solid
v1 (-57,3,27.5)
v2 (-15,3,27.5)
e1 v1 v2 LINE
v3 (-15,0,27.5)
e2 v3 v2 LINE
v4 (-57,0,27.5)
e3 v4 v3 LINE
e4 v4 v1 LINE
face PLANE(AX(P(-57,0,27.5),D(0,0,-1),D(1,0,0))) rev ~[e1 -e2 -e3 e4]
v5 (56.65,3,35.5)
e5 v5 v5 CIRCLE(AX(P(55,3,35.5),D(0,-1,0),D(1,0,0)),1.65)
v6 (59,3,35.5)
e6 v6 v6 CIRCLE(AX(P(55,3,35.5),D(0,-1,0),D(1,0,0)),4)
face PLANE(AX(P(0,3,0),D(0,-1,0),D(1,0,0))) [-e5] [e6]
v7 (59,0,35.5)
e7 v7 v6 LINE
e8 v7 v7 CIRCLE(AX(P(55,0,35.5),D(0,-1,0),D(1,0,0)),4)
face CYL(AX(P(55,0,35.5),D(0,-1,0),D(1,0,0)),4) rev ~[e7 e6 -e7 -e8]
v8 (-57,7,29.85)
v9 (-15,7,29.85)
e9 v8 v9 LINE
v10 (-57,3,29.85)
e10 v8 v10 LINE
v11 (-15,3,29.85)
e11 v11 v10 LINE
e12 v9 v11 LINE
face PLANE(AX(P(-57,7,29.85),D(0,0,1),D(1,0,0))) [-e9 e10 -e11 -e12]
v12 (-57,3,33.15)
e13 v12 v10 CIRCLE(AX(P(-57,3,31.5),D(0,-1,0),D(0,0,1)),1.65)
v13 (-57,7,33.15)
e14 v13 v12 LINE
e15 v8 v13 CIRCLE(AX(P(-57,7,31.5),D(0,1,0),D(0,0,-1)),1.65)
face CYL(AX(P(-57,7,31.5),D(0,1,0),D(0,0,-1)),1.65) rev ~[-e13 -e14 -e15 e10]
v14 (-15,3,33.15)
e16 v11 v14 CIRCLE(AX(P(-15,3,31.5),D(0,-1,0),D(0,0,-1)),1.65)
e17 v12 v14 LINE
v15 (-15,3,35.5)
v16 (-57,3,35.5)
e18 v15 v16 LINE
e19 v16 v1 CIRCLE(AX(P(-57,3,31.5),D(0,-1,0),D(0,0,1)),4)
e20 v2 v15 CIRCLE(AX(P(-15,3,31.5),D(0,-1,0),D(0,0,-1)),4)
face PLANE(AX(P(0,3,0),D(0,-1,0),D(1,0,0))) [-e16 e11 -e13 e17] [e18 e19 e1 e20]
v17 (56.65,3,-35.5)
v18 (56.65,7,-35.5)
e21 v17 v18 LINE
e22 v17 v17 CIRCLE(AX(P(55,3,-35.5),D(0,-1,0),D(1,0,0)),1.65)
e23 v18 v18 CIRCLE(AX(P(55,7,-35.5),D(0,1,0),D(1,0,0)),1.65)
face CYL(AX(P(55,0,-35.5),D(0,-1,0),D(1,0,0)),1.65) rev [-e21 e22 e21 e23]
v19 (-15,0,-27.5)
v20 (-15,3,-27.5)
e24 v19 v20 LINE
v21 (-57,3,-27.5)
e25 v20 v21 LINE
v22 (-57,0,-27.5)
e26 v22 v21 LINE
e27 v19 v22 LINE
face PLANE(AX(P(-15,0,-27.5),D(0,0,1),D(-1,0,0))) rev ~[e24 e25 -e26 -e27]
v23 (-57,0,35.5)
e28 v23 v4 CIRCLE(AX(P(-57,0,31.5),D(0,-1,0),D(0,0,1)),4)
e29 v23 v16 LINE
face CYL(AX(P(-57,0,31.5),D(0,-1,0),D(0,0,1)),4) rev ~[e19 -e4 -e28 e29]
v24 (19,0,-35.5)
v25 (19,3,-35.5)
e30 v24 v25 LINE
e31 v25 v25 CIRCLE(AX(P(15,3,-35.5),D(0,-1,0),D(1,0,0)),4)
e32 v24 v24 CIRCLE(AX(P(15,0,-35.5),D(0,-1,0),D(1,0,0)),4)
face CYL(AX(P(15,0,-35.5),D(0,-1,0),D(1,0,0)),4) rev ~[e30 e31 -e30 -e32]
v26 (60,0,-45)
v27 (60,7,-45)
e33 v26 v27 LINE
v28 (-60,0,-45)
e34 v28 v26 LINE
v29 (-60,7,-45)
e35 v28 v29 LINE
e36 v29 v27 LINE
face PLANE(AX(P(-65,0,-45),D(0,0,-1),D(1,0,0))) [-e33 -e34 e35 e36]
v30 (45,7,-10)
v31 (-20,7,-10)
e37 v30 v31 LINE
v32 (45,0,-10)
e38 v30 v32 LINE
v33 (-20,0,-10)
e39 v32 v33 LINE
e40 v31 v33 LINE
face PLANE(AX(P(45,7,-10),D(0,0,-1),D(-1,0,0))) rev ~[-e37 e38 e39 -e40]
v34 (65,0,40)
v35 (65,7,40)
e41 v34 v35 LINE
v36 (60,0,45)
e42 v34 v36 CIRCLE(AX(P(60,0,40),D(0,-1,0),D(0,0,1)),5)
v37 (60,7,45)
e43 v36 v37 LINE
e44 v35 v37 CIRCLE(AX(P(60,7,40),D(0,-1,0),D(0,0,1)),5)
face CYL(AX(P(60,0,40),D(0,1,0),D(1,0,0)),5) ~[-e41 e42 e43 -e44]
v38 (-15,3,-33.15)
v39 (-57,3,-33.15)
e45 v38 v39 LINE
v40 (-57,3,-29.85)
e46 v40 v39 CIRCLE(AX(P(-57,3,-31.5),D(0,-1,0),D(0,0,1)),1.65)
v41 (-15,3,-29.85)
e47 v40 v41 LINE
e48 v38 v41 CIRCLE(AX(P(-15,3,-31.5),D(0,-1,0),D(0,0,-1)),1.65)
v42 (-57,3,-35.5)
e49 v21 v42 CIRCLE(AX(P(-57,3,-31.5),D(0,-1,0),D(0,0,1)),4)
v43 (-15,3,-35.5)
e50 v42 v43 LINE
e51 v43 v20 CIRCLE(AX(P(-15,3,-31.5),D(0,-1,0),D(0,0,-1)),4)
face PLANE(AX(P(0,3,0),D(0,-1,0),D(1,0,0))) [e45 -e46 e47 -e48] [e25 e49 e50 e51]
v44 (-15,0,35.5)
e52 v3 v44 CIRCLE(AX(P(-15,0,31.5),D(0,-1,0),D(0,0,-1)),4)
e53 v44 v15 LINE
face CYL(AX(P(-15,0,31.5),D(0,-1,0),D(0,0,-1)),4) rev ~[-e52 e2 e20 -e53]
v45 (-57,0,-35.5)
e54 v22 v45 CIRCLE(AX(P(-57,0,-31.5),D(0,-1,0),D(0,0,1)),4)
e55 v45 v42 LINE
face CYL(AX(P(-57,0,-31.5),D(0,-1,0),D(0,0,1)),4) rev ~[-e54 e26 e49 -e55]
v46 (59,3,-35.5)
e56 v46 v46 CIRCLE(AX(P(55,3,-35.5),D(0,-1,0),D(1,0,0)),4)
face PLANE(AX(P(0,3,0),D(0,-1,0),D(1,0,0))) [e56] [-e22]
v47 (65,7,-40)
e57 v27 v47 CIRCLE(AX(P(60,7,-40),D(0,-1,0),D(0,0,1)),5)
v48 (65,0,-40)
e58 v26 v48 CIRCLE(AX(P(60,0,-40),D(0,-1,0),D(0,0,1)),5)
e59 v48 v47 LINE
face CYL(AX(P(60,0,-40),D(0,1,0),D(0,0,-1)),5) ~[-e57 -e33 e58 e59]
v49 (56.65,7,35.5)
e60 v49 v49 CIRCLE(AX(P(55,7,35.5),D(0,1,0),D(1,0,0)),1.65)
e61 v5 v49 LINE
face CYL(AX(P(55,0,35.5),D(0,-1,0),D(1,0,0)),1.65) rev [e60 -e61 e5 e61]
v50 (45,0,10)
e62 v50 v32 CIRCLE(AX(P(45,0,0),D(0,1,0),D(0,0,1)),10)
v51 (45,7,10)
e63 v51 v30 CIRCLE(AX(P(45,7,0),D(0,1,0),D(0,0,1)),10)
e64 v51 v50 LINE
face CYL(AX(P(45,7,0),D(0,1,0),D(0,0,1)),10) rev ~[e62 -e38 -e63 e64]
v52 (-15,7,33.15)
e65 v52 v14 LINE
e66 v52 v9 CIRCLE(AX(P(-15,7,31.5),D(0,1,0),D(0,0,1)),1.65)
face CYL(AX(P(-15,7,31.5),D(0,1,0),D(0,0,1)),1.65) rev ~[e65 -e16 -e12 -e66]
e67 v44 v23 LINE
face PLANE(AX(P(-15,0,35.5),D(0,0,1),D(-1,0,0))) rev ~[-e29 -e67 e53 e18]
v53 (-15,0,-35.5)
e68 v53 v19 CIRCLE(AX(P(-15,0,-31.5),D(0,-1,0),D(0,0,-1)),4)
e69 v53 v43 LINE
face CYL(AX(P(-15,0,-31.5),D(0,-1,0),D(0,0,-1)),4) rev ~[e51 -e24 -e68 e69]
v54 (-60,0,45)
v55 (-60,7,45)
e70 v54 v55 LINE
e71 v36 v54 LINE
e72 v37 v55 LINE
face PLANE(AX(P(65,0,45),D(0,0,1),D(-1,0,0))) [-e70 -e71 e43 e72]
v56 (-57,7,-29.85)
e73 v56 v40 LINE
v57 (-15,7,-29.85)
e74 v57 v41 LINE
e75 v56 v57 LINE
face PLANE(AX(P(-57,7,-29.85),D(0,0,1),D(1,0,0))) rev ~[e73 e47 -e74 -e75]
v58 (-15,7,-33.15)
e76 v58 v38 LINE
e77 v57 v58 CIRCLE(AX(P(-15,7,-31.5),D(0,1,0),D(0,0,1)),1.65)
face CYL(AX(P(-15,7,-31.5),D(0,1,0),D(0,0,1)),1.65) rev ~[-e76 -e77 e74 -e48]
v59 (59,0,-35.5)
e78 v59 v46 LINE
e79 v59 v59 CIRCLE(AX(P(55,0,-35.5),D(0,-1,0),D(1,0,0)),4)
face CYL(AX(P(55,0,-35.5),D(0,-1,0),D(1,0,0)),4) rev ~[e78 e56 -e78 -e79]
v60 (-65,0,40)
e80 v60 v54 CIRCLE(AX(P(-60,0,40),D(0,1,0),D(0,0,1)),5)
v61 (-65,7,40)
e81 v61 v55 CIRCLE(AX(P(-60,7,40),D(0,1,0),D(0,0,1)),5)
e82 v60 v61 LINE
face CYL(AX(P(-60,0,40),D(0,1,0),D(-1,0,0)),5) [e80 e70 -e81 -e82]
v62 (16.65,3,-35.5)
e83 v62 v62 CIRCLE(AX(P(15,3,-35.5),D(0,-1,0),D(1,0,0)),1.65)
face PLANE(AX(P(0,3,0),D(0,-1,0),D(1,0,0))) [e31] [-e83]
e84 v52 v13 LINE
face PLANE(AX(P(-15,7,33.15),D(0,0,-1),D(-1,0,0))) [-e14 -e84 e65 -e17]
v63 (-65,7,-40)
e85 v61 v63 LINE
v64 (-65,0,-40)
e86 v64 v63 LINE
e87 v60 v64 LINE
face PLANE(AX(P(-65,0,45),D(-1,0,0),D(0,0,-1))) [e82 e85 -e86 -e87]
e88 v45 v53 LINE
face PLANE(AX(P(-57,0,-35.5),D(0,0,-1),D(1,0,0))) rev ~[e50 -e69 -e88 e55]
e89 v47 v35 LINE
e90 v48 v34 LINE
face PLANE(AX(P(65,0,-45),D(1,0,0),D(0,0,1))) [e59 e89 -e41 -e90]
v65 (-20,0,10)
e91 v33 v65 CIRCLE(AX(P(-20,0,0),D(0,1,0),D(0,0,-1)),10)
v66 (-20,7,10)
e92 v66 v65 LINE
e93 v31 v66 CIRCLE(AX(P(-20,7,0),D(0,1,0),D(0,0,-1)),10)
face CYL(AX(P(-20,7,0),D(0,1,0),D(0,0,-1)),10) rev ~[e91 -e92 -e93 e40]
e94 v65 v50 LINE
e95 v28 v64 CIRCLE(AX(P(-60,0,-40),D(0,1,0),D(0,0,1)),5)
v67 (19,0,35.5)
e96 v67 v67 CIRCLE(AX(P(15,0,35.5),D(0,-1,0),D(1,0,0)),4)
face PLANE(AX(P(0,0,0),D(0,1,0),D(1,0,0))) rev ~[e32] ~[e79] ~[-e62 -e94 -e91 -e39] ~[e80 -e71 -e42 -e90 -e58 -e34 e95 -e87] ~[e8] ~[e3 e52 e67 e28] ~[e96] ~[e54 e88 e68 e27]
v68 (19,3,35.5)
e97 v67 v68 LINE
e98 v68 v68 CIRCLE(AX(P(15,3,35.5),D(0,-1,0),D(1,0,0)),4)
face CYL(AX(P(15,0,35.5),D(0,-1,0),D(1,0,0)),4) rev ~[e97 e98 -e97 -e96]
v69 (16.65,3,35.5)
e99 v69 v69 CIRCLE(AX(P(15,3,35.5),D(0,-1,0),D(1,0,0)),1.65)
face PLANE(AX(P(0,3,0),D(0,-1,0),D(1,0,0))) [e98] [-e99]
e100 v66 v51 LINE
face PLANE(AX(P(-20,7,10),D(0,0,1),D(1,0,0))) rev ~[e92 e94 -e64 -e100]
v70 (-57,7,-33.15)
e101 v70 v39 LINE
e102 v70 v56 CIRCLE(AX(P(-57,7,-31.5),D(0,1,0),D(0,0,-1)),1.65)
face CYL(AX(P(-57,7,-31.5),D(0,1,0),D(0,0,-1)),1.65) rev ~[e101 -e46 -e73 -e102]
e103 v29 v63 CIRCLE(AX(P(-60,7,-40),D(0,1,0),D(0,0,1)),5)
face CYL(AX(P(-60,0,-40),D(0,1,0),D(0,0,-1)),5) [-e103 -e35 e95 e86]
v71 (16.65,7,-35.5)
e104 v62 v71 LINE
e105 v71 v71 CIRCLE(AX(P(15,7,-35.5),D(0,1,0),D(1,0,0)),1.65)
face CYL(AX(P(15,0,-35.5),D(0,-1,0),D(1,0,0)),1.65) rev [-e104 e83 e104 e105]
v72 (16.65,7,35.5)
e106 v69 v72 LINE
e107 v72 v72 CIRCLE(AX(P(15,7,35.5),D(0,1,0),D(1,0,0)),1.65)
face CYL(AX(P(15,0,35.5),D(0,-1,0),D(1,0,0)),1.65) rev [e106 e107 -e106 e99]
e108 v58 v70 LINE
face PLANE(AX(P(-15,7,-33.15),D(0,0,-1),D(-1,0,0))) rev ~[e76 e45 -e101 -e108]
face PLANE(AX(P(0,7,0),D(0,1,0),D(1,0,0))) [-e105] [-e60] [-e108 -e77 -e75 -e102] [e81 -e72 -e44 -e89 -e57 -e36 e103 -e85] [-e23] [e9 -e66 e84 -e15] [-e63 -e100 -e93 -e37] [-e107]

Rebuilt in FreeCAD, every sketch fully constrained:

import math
import FreeCAD as App
import Part
import Sketcher


def edges_at(feature, points):
    """Names of the edges that pass closest to the given points."""
    edges = feature.Shape.Edges
    near = lambda p: min(range(len(edges)), key=lambda i: edges[i].distToShape(Part.Vertex(*p))[0])
    return sorted({f"Edge{near(p) + 1}" for p in points})

doc = App.newDocument("Part")
body = doc.addObject("PartDesign::Body", "Body")

sketch1 = body.newObject("Sketcher::SketchObject", "Sketch")
sketch1.AttachmentSupport = (doc.getObject("XZ_Plane"), [""])
sketch1.MapMode = "FlatFace"
sketch1.addGeometry(Part.LineSegment(App.Vector(65, -45, 0), App.Vector(-65, -45, 0)), False)
sketch1.addGeometry(Part.LineSegment(App.Vector(-65, -45, 0), App.Vector(-65, 45, 0)), False)
sketch1.addGeometry(Part.LineSegment(App.Vector(-65, 45, 0), App.Vector(65, 45, 0)), False)
sketch1.addGeometry(Part.LineSegment(App.Vector(65, 45, 0), App.Vector(65, -45, 0)), False)
sketch1.addGeometry(Part.Circle(App.Vector(15, 35.5, 0), App.Vector(0, 0, 1), 1.6), False)
sketch1.addGeometry(Part.Circle(App.Vector(55, 35.5, 0), App.Vector(0, 0, 1), 1.6), False)
sketch1.addGeometry(Part.Circle(App.Vector(15, -35.5, 0), App.Vector(0, 0, 1), 1.6), False)
sketch1.addGeometry(Part.Circle(App.Vector(55, -35.5, 0), App.Vector(0, 0, 1), 1.6), False)
sketch1.addConstraint(Sketcher.Constraint("Coincident", 0, 2, 1, 1))
sketch1.addConstraint(Sketcher.Constraint("Coincident", 1, 2, 2, 1))
sketch1.addConstraint(Sketcher.Constraint("Coincident", 2, 2, 3, 1))
sketch1.addConstraint(Sketcher.Constraint("Coincident", 3, 2, 0, 1))
sketch1.addConstraint(Sketcher.Constraint("Horizontal", 0))
sketch1.addConstraint(Sketcher.Constraint("Vertical", 1))
sketch1.addConstraint(Sketcher.Constraint("Horizontal", 2))
sketch1.addConstraint(Sketcher.Constraint("Vertical", 3))
sketch1.addConstraint(Sketcher.Constraint("Equal", 4, 5))
sketch1.addConstraint(Sketcher.Constraint("Equal", 5, 6))
sketch1.addConstraint(Sketcher.Constraint("Equal", 6, 7))
sketch1.addConstraint(Sketcher.Constraint("Symmetric", 0, 2, 2, 2, -1, 1))
sketch1.addConstraint(Sketcher.Constraint("Symmetric", 4, 3, 6, 3, -1))
sketch1.addConstraint(Sketcher.Constraint("Symmetric", 5, 3, 7, 3, -1))
sketch1.addConstraint(Sketcher.Constraint("Horizontal", 4, 3, 5, 3))
sketch1.addConstraint(Sketcher.Constraint("Diameter", 4, 3.3))
sketch1.addConstraint(Sketcher.Constraint("DistanceX", 0, 2, 0, 1, 130.0))
sketch1.addConstraint(Sketcher.Constraint("DistanceY", 1, 1, 1, 2, 90.0))
sketch1.addConstraint(Sketcher.Constraint("DistanceX", 4, 3, 5, 3, 40.0))
sketch1.addConstraint(Sketcher.Constraint("DistanceY", 6, 3, 4, 3, 71.0))
sketch1.addConstraint(Sketcher.Constraint("DistanceX", 5, 3, 2, 2, 10.0))
pad1 = body.newObject("PartDesign::Pad", "Pad")
pad1.Profile = sketch1
pad1.Length = 7
pad1.Reversed = True

sketch2 = body.newObject("Sketcher::SketchObject", "Sketch001")
sketch2.AttachmentSupport = (doc.getObject("XZ_Plane"), [""])
sketch2.MapMode = "FlatFace"
sketch2.AttachmentOffset = App.Placement(App.Vector(0, 0, -7), App.Rotation())
sketch2.addGeometry(Part.ArcOfCircle(Part.Circle(App.Vector(45, 0, 0), App.Vector(0, 0, 1), 10), math.radians(-90), math.radians(90)), False)
sketch2.addGeometry(Part.LineSegment(App.Vector(45, -10, 0), App.Vector(-20, -10, 0)), False)
sketch2.addGeometry(Part.ArcOfCircle(Part.Circle(App.Vector(-20, 0, 0), App.Vector(0, 0, 1), 10), math.radians(90), math.radians(270)), False)
sketch2.addGeometry(Part.LineSegment(App.Vector(-20, 10, 0), App.Vector(45, 10, 0)), False)
sketch2.addConstraint(Sketcher.Constraint("Tangent", 0, 1, 1, 1))
sketch2.addConstraint(Sketcher.Constraint("Tangent", 1, 2, 2, 2))
sketch2.addConstraint(Sketcher.Constraint("Tangent", 2, 1, 3, 1))
sketch2.addConstraint(Sketcher.Constraint("Tangent", 3, 2, 0, 2))
sketch2.addConstraint(Sketcher.Constraint("Horizontal", 1))
sketch2.addConstraint(Sketcher.Constraint("Horizontal", 3))
sketch2.addConstraint(Sketcher.Constraint("PointOnObject", 0, 3, -1))
sketch2.addConstraint(Sketcher.Constraint("Radius", 0, 10.0))
sketch2.addConstraint(Sketcher.Constraint("DistanceX", 1, 2, 1, 1, 65.0))
sketch2.addConstraint(Sketcher.Constraint("DistanceX", -1, 1, 0, 3, 45.0))
pocket1 = body.newObject("PartDesign::Pocket", "Pocket")
pocket1.Profile = sketch2
pocket1.Length = 7
pocket1.Reversed = True
doc.recompute()

fillet = body.newObject("PartDesign::Fillet", "Fillet")
fillet.Base = (pocket1, edges_at(pocket1, [
    (65, 3.5, 45),
    (-65, 3.5, 45),
    (-65, 3.5, -45),
    (65, 3.5, -45),
]))
fillet.Radius = 5

sketch3 = body.newObject("Sketcher::SketchObject", "Sketch002")
sketch3.AttachmentSupport = (doc.getObject("XZ_Plane"), [""])
sketch3.MapMode = "FlatFace"
sketch3.AttachmentOffset = App.Placement(App.Vector(0, 0, -7), App.Rotation())
sketch3.addGeometry(Part.ArcOfCircle(Part.Circle(App.Vector(-57, -31.5, 0), App.Vector(0, 0, 1), 1.6), math.radians(90), math.radians(270)), False)
sketch3.addGeometry(Part.LineSegment(App.Vector(-57, -29.9, 0), App.Vector(-15, -29.9, 0)), False)
sketch3.addGeometry(Part.ArcOfCircle(Part.Circle(App.Vector(-15, -31.5, 0), App.Vector(0, 0, 1), 1.6), math.radians(-90), math.radians(90)), False)
sketch3.addGeometry(Part.LineSegment(App.Vector(-15, -33.1, 0), App.Vector(-57, -33.1, 0)), False)
sketch3.addGeometry(Part.LineSegment(App.Vector(-57, 33.1, 0), App.Vector(-15, 33.1, 0)), False)
sketch3.addGeometry(Part.ArcOfCircle(Part.Circle(App.Vector(-15, 31.5, 0), App.Vector(0, 0, 1), 1.6), math.radians(-90), math.radians(90)), False)
sketch3.addGeometry(Part.LineSegment(App.Vector(-15, 29.9, 0), App.Vector(-57, 29.9, 0)), False)
sketch3.addGeometry(Part.ArcOfCircle(Part.Circle(App.Vector(-57, 31.5, 0), App.Vector(0, 0, 1), 1.6), math.radians(90), math.radians(270)), False)
sketch3.addConstraint(Sketcher.Constraint("Tangent", 0, 1, 1, 1))
sketch3.addConstraint(Sketcher.Constraint("Tangent", 1, 2, 2, 2))
sketch3.addConstraint(Sketcher.Constraint("Tangent", 2, 1, 3, 1))
sketch3.addConstraint(Sketcher.Constraint("Tangent", 3, 2, 0, 2))
sketch3.addConstraint(Sketcher.Constraint("Tangent", 4, 2, 5, 2))
sketch3.addConstraint(Sketcher.Constraint("Tangent", 5, 1, 6, 1))
sketch3.addConstraint(Sketcher.Constraint("Tangent", 6, 2, 7, 2))
sketch3.addConstraint(Sketcher.Constraint("Tangent", 7, 1, 4, 1))
sketch3.addConstraint(Sketcher.Constraint("Horizontal", 1))
sketch3.addConstraint(Sketcher.Constraint("Horizontal", 3))
sketch3.addConstraint(Sketcher.Constraint("Horizontal", 4))
sketch3.addConstraint(Sketcher.Constraint("Horizontal", 6))
sketch3.addConstraint(Sketcher.Constraint("Equal", 2, 5))
sketch3.addConstraint(Sketcher.Constraint("Symmetric", 2, 3, 5, 3, -1))
sketch3.addConstraint(Sketcher.Constraint("Vertical", 0, 3, 7, 3))
sketch3.addConstraint(Sketcher.Constraint("DistanceX", 1, 1, 1, 2, 42.0))
sketch3.addConstraint(Sketcher.Constraint("Radius", 0, 1.65))
sketch3.addConstraint(Sketcher.Constraint("DistanceY", 0, 3, -1, 1, 31.5))
sketch3.addConstraint(Sketcher.Constraint("DistanceX", 0, 3, -1, 1, 57.0))
pocket2 = body.newObject("PartDesign::Pocket", "Pocket001")
pocket2.Profile = sketch3
pocket2.Length = 7
pocket2.Reversed = True

sketch4 = body.newObject("Sketcher::SketchObject", "Sketch003")
sketch4.AttachmentSupport = (doc.getObject("XZ_Plane"), [""])
sketch4.MapMode = "FlatFace"
sketch4.addGeometry(Part.Circle(App.Vector(55, 35.5, 0), App.Vector(0, 0, 1), 4), False)
sketch4.addGeometry(Part.Circle(App.Vector(55, 35.5, 0), App.Vector(0, 0, 1), 1.6), False)
sketch4.addGeometry(Part.Circle(App.Vector(55, -35.5, 0), App.Vector(0, 0, 1), 4), False)
sketch4.addGeometry(Part.Circle(App.Vector(55, -35.5, 0), App.Vector(0, 0, 1), 1.6), False)
sketch4.addGeometry(Part.Circle(App.Vector(15, 35.5, 0), App.Vector(0, 0, 1), 4), False)
sketch4.addGeometry(Part.Circle(App.Vector(15, 35.5, 0), App.Vector(0, 0, 1), 1.6), False)
sketch4.addGeometry(Part.Circle(App.Vector(15, -35.5, 0), App.Vector(0, 0, 1), 4), False)
sketch4.addGeometry(Part.Circle(App.Vector(15, -35.5, 0), App.Vector(0, 0, 1), 1.6), False)
sketch4.addGeometry(Part.ArcOfCircle(Part.Circle(App.Vector(-57, 31.5, 0), App.Vector(0, 0, 1), 4), math.radians(90), math.radians(270)), False)
sketch4.addGeometry(Part.LineSegment(App.Vector(-57, 27.5, 0), App.Vector(-15, 27.5, 0)), False)
sketch4.addGeometry(Part.ArcOfCircle(Part.Circle(App.Vector(-15, 31.5, 0), App.Vector(0, 0, 1), 4), math.radians(-90), math.radians(90)), False)
sketch4.addGeometry(Part.LineSegment(App.Vector(-15, 35.5, 0), App.Vector(-57, 35.5, 0)), False)
sketch4.addGeometry(Part.ArcOfCircle(Part.Circle(App.Vector(-57, 31.5, 0), App.Vector(0, 0, 1), 1.6), math.radians(90), math.radians(270)), False)
sketch4.addGeometry(Part.LineSegment(App.Vector(-57, 33.1, 0), App.Vector(-15, 33.1, 0)), False)
sketch4.addGeometry(Part.ArcOfCircle(Part.Circle(App.Vector(-15, 31.5, 0), App.Vector(0, 0, 1), 1.6), math.radians(-90), math.radians(90)), False)
sketch4.addGeometry(Part.LineSegment(App.Vector(-15, 29.9, 0), App.Vector(-57, 29.9, 0)), False)
sketch4.addGeometry(Part.ArcOfCircle(Part.Circle(App.Vector(-57, -31.5, 0), App.Vector(0, 0, 1), 4), math.radians(90), math.radians(270)), False)
sketch4.addGeometry(Part.LineSegment(App.Vector(-57, -35.5, 0), App.Vector(-15, -35.5, 0)), False)
sketch4.addGeometry(Part.ArcOfCircle(Part.Circle(App.Vector(-15, -31.5, 0), App.Vector(0, 0, 1), 4), math.radians(-90), math.radians(90)), False)
sketch4.addGeometry(Part.LineSegment(App.Vector(-15, -27.5, 0), App.Vector(-57, -27.5, 0)), False)
sketch4.addGeometry(Part.ArcOfCircle(Part.Circle(App.Vector(-15, -31.5, 0), App.Vector(0, 0, 1), 1.6), math.radians(-90), math.radians(90)), False)
sketch4.addGeometry(Part.LineSegment(App.Vector(-15, -33.1, 0), App.Vector(-57, -33.1, 0)), False)
sketch4.addGeometry(Part.ArcOfCircle(Part.Circle(App.Vector(-57, -31.5, 0), App.Vector(0, 0, 1), 1.6), math.radians(90), math.radians(270)), False)
sketch4.addGeometry(Part.LineSegment(App.Vector(-57, -29.9, 0), App.Vector(-15, -29.9, 0)), False)
sketch4.addConstraint(Sketcher.Constraint("Tangent", 8, 2, 9, 1))
sketch4.addConstraint(Sketcher.Constraint("Tangent", 9, 2, 10, 1))
sketch4.addConstraint(Sketcher.Constraint("Tangent", 10, 2, 11, 1))
sketch4.addConstraint(Sketcher.Constraint("Tangent", 11, 2, 8, 1))
sketch4.addConstraint(Sketcher.Constraint("Tangent", 12, 1, 13, 1))
sketch4.addConstraint(Sketcher.Constraint("Tangent", 13, 2, 14, 2))
sketch4.addConstraint(Sketcher.Constraint("Tangent", 14, 1, 15, 1))
sketch4.addConstraint(Sketcher.Constraint("Tangent", 15, 2, 12, 2))
sketch4.addConstraint(Sketcher.Constraint("Tangent", 16, 2, 17, 1))
sketch4.addConstraint(Sketcher.Constraint("Tangent", 17, 2, 18, 1))
sketch4.addConstraint(Sketcher.Constraint("Tangent", 18, 2, 19, 1))
sketch4.addConstraint(Sketcher.Constraint("Tangent", 19, 2, 16, 1))
sketch4.addConstraint(Sketcher.Constraint("Tangent", 20, 1, 21, 1))
sketch4.addConstraint(Sketcher.Constraint("Tangent", 21, 2, 22, 2))
sketch4.addConstraint(Sketcher.Constraint("Tangent", 22, 1, 23, 1))
sketch4.addConstraint(Sketcher.Constraint("Tangent", 23, 2, 20, 2))
sketch4.addConstraint(Sketcher.Constraint("Horizontal", 9))
sketch4.addConstraint(Sketcher.Constraint("Horizontal", 11))
sketch4.addConstraint(Sketcher.Constraint("Horizontal", 13))
sketch4.addConstraint(Sketcher.Constraint("Horizontal", 15))
sketch4.addConstraint(Sketcher.Constraint("Horizontal", 17))
sketch4.addConstraint(Sketcher.Constraint("Horizontal", 19))
sketch4.addConstraint(Sketcher.Constraint("Horizontal", 21))
sketch4.addConstraint(Sketcher.Constraint("Horizontal", 23))
sketch4.addConstraint(Sketcher.Constraint("Coincident", 1, 3, 0, 3))
sketch4.addConstraint(Sketcher.Constraint("Coincident", 3, 3, 2, 3))
sketch4.addConstraint(Sketcher.Constraint("Coincident", 5, 3, 4, 3))
sketch4.addConstraint(Sketcher.Constraint("Coincident", 7, 3, 6, 3))
sketch4.addConstraint(Sketcher.Constraint("Coincident", 12, 3, 8, 3))
sketch4.addConstraint(Sketcher.Constraint("Coincident", 20, 3, 18, 3))
sketch4.addConstraint(Sketcher.Constraint("Equal", 0, 2))
sketch4.addConstraint(Sketcher.Constraint("Equal", 1, 3))
sketch4.addConstraint(Sketcher.Constraint("Equal", 2, 4))
sketch4.addConstraint(Sketcher.Constraint("Equal", 3, 5))
sketch4.addConstraint(Sketcher.Constraint("Equal", 4, 6))
sketch4.addConstraint(Sketcher.Constraint("Equal", 5, 7))
sketch4.addConstraint(Sketcher.Constraint("Equal", 6, 8))
sketch4.addConstraint(Sketcher.Constraint("Equal", 7, 12))
sketch4.addConstraint(Sketcher.Constraint("Equal", 10, 16))
sketch4.addConstraint(Sketcher.Constraint("Equal", 14, 20))
sketch4.addConstraint(Sketcher.Constraint("Symmetric", 0, 3, 2, 3, -1))
sketch4.addConstraint(Sketcher.Constraint("Symmetric", 4, 3, 6, 3, -1))
sketch4.addConstraint(Sketcher.Constraint("Symmetric", 8, 3, 16, 3, -1))
sketch4.addConstraint(Sketcher.Constraint("Horizontal", 1, 3, 4, 3))
sketch4.addConstraint(Sketcher.Constraint("Horizontal", 5, 3, 10, 2))
sketch4.addConstraint(Sketcher.Constraint("Vertical", 14, 3, 18, 3))
sketch4.addConstraint(Sketcher.Constraint("Vertical", 12, 3, 22, 3))
sketch4.addConstraint(Sketcher.Constraint("Vertical", 20, 3, 9, 2))
sketch4.addConstraint(Sketcher.Constraint("Diameter", 0, 8.0))
sketch4.addConstraint(Sketcher.Constraint("Diameter", 1, 3.3))
sketch4.addConstraint(Sketcher.Constraint("DistanceX", 9, 1, 9, 2, 42.0))
sketch4.addConstraint(Sketcher.Constraint("DistanceX", -1, 1, 0, 3, 55.0))
sketch4.addConstraint(Sketcher.Constraint("DistanceX", -1, 1, 4, 3, 15.0))
sketch4.addConstraint(Sketcher.Constraint("DistanceX", 8, 3, -1, 1, 57.0))
sketch4.addConstraint(Sketcher.Constraint("DistanceY", 2, 3, 0, 3, 71.0))
pocket3 = body.newObject("PartDesign::Pocket", "Pocket002")
pocket3.Profile = sketch4
pocket3.Length = 3

doc.recompute()
